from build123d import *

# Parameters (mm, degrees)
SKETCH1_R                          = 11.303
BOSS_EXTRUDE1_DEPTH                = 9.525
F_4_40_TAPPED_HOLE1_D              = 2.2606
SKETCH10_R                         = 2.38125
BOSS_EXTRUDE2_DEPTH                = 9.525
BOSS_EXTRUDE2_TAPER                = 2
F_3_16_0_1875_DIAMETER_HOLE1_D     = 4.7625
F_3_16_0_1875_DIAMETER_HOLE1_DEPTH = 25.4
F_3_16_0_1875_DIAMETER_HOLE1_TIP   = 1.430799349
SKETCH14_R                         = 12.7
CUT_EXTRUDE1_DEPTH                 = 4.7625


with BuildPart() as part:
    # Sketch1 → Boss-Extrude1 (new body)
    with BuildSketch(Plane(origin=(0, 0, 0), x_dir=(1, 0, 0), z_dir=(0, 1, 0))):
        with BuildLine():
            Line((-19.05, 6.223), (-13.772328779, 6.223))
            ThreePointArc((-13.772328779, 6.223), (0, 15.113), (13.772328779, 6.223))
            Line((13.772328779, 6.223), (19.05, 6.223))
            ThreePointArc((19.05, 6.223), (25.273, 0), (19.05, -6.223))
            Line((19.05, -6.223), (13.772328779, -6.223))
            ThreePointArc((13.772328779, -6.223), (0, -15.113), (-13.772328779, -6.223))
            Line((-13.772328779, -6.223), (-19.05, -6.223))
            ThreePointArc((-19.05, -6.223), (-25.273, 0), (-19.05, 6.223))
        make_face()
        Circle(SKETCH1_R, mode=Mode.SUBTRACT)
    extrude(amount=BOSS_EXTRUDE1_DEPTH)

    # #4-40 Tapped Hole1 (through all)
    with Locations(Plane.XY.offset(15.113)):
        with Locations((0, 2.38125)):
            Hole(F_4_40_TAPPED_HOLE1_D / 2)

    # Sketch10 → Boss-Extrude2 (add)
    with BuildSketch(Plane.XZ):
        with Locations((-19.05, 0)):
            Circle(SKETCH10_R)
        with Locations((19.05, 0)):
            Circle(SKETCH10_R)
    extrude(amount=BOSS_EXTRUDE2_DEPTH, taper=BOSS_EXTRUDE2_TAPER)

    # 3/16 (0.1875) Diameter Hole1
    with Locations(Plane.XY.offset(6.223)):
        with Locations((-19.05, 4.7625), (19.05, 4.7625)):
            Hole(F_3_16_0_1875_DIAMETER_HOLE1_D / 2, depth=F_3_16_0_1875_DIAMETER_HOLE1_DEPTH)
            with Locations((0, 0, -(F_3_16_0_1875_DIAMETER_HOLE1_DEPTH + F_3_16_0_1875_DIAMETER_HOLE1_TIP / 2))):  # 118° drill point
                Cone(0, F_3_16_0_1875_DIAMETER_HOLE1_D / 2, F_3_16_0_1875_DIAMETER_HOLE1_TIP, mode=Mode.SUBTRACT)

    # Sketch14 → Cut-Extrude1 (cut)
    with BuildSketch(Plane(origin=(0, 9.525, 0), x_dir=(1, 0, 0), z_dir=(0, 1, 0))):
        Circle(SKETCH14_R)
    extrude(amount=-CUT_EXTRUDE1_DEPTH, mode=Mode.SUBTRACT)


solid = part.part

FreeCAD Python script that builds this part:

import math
import FreeCAD as App
import Part
import Sketcher
from FreeCAD import Vector
Q = App.Units.Quantity

doc = App.newDocument("Part")
body = doc.addObject("PartDesign::Body", "Body")

# Sketch on XZ plane
sketch1 = body.newObject("Sketcher::SketchObject", "Sketch")
sketch1.AttachmentSupport = (doc.getObject("XZ_Plane"), [""])
sketch1.MapMode = "FlatFace"
sketch1.addGeometry([
    Part.LineSegment(Vector(-14, -6, 0), Vector(-19, -6, 0)),  # 0
    Part.ArcOfCircle(Part.Circle(Vector(-19, 0, 0), Vector(0, 0, 1), 6), math.radians(90), math.radians(270)),  # 1
    Part.LineSegment(Vector(-19, 6, 0), Vector(-14, 6, 0)),  # 2
    Part.ArcOfCircle(Part.Circle(Vector(0, 0, 0), Vector(0, 0, 1), 15), math.radians(24), math.radians(156)),  # 3
    Part.LineSegment(Vector(14, 6, 0), Vector(19, 6, 0)),  # 4
    Part.ArcOfCircle(Part.Circle(Vector(19, 0, 0), Vector(0, 0, 1), 6), math.radians(-90), math.radians(90)),  # 5
    Part.LineSegment(Vector(19, -6, 0), Vector(14, -6, 0)),  # 6
    Part.ArcOfCircle(Part.Circle(Vector(0, 0, 0), Vector(0, 0, 1), 15), math.radians(-156), math.radians(-24)),  # 7
    Part.Circle(Vector(0, 0, 0), Vector(0, 0, 1), 11),  # 8
], False)
sketch1.addConstraint([
    Sketcher.Constraint("Tangent", 0, 2, 1, 2),
    Sketcher.Constraint("Tangent", 1, 1, 2, 1),
    Sketcher.Constraint("Coincident", 2, 2, 3, 2),
    Sketcher.Constraint("Coincident", 3, 1, 4, 1),
    Sketcher.Constraint("Tangent", 4, 2, 5, 2),
    Sketcher.Constraint("Tangent", 5, 1, 6, 1),
    Sketcher.Constraint("Coincident", 6, 2, 7, 2),
    Sketcher.Constraint("Coincident", 7, 1, 0, 1),
    Sketcher.Constraint("Horizontal", 0),
    Sketcher.Constraint("Horizontal", 2),
    Sketcher.Constraint("Horizontal", 4),
    Sketcher.Constraint("Horizontal", 6),
    Sketcher.Constraint("Coincident", 3, 3, -1, 1),
    Sketcher.Constraint("Coincident", 7, 3, -1, 1),
    Sketcher.Constraint("Coincident", 8, 3, -1, 1),
    Sketcher.Constraint("Equal", 1, 5),
    Sketcher.Constraint("Equal", 3, 7),
    Sketcher.Constraint("Symmetric", 1, 3, 5, 3, -1, 1),
    Sketcher.Constraint("PointOnObject", 1, 3, -1),
    Sketcher.Constraint("Diameter", 8, Q("0.89 in")),
    Sketcher.Constraint("Radius", 1, Q("0.245 in")),
    Sketcher.Constraint("Radius", 3, Q("0.595 in")),
    Sketcher.Constraint("DistanceX", 1, 3, 5, 3, Q("1.5 in")),
])
pad1 = body.newObject("PartDesign::Pad", "Pad")
pad1.Profile = sketch1
pad1.Length = Q("0.375 in")
pad1.Reversed = True

# Sketch on XY plane
sketch2 = body.newObject("Sketcher::SketchObject", "Sketch001")
sketch2.AttachmentSupport = (doc.getObject("XY_Plane"), [""])
sketch2.MapMode = "FlatFace"
sketch2.AttachmentOffset = App.Placement(Vector(0, 0, 0.595 * 25.4), App.Rotation())
sketch2.addGeometry(Part.Circle(Vector(0, 2.4, 0), Vector(0, 0, 1), 1.1), False)
sketch2.addConstraint([
    Sketcher.Constraint("PointOnObject", 0, 3, -2),
    Sketcher.Constraint("Diameter", 0, Q("0.089 in")),
    Sketcher.Constraint("DistanceY", -1, 1, 0, 3, Q("0.09375 in")),
])
doc.recompute()
hole = body.newObject("PartDesign::Hole", "Hole")
hole.Profile = sketch2
hole.ThreadType = "None"
hole.Diameter = Q("0.089 in")
hole.DepthType = "ThroughAll"

# Sketch on XZ plane
sketch3 = body.newObject("Sketcher::SketchObject", "Sketch002")
sketch3.AttachmentSupport = (doc.getObject("XZ_Plane"), [""])
sketch3.MapMode = "FlatFace"
sketch3.addGeometry([
    Part.Circle(Vector(-19.1, 0, 0), Vector(0, 0, 1), 2.4),
    Part.Circle(Vector(19.1, 0, 0), Vector(0, 0, 1), 2.4),
], False)
sketch3.addConstraint([
    Sketcher.Constraint("Equal", 0, 1),
    Sketcher.Constraint("Symmetric", 0, 3, 1, 3, -1, 1),
    Sketcher.Constraint("PointOnObject", 0, 3, -1),
    Sketcher.Constraint("Diameter", 0, Q("0.1875 in")),
    Sketcher.Constraint("DistanceX", 0, 3, 1, 3, Q("1.5 in")),
])
pad2 = body.newObject("PartDesign::Pad", "Pad001")
pad2.Profile = sketch3
pad2.Length = Q("0.375 in")
pad2.TaperAngle = -2

# Sketch on XY plane
sketch4 = body.newObject("Sketcher::SketchObject", "Sketch003")
sketch4.AttachmentSupport = (doc.getObject("XY_Plane"), [""])
sketch4.MapMode = "FlatFace"
sketch4.AttachmentOffset = App.Placement(Vector(0, 0, 0.245 * 25.4), App.Rotation())
sketch4.addGeometry([
    Part.Circle(Vector(-19.1, 4.8, 0), Vector(0, 0, 1), 2.4),
    Part.Circle(Vector(19.1, 4.8, 0), Vector(0, 0, 1), 2.4),
], False)
sketch4.addConstraint([
    Sketcher.Constraint("Equal", 0, 1),
    Sketcher.Constraint("Symmetric", 0, 3, 1, 3, -2),
    Sketcher.Constraint("Diameter", 0, Q("0.1875 in")),
    Sketcher.Constraint("DistanceX", 0, 3, 1, 3, Q("1.5 in")),
    Sketcher.Constraint("DistanceY", -1, 1, 0, 3, Q("0.1875 in")),
])
doc.recompute()
hole2 = body.newObject("PartDesign::Hole", "Hole001")
hole2.Profile = sketch4
hole2.ThreadType = "None"
hole2.Diameter = Q("0.1875 in")
hole2.DepthType = "Dimension"
hole2.Depth = Q("1 in")
hole2.DrillPoint = "Angled"
hole2.DrillPointAngle = 118

# Sketch on XZ plane
sketch5 = body.newObject("Sketcher::SketchObject", "Sketch004")
sketch5.AttachmentSupport = (doc.getObject("XZ_Plane"), [""])
sketch5.MapMode = "FlatFace"
sketch5.AttachmentOffset = App.Placement(Vector(0, 0, -0.375 * 25.4), App.Rotation())
sketch5.addGeometry(Part.Circle(Vector(0, 0, 0), Vector(0, 0, 1), 13), False)
sketch5.addConstraint([
    Sketcher.Constraint("Coincident", 0, 3, -1, 1),
    Sketcher.Constraint("Diameter", 0, Q("1 in")),
])
pocket1 = body.newObject("PartDesign::Pocket", "Pocket")
pocket1.Profile = sketch5
pocket1.Length = Q("0.1875 in")
pocket1.Reversed = True

doc.recompute()
